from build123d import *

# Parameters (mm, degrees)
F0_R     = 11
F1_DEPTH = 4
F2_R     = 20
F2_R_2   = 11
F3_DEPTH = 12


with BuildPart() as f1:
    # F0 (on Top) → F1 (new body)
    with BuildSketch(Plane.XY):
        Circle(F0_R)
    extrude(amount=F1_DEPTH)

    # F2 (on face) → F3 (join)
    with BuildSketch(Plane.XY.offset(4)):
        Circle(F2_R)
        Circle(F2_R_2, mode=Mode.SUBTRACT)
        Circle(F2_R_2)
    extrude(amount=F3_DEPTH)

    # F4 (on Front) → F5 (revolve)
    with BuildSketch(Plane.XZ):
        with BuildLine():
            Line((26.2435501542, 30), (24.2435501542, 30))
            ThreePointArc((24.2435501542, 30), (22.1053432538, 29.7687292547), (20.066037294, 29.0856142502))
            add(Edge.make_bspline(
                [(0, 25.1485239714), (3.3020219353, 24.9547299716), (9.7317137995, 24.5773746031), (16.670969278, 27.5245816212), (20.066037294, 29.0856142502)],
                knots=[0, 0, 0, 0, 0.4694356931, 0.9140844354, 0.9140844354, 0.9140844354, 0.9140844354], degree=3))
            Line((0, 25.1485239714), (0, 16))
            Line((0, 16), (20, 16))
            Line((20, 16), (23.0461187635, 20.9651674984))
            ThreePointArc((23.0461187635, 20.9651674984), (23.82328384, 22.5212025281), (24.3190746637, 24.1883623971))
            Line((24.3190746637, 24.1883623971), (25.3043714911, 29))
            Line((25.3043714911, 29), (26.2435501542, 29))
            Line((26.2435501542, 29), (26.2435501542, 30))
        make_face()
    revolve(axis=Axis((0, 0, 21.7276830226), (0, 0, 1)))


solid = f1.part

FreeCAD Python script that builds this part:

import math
import FreeCAD as App
import Part
import Sketcher
from FreeCAD import Vector
Q = App.Units.Quantity

doc = App.newDocument("Part")
params = doc.addObject("Spreadsheet::Sheet", "Params")
for row, (alias, value) in enumerate([
    ("sketch1_diameter", "22 mm"),
    ("pad1_length", "4 mm"),
    ("sketch2_diameter", "40 mm"),
    ("pad2_length", "12 mm"),
    ("sketch3_radius", "10 mm"),
    ("sketch3_radius2", "10 mm"),
    ("sketch3_width", "2 mm"),
    ("sketch3_width2", "20 mm"),
    ("sketch3_height", "1 mm"),
    ("revolution_angle", "360 deg"),
], start=1):
    params.set(f"A{row}", alias)
    params.set(f"B{row}", "=" + value)
    params.setAlias(f"B{row}", alias)

body = doc.addObject("PartDesign::Body", "Body")

# Sketch on XY plane
sketch1 = doc.addObject("Sketcher::SketchObject", "Sketch")
body.addObject(sketch1)
sketch1.AttachmentSupport = (doc.XY_Plane, [""])
sketch1.MapMode = "FlatFace"
sketch1.addGeometry(Part.Circle(Vector(0, 0, 0), Vector(0, 0, 1), 11), False)
sketch1.addConstraint(Sketcher.Constraint("Coincident", 0, 3, -1, 1))
sketch1.addConstraint(Sketcher.Constraint("Diameter", 0, Q("22 mm")))
sketch1.setExpression("Constraints[1]", "Params.sketch1_diameter")
pad1 = doc.addObject("PartDesign::Pad", "Pad")
body.addObject(pad1)
pad1.Profile = sketch1
pad1.setExpression("Length", "Params.pad1_length")

# Sketch on XY plane
sketch2 = doc.addObject("Sketcher::SketchObject", "Sketch001")
body.addObject(sketch2)
sketch2.AttachmentSupport = (doc.XY_Plane, [""])
sketch2.MapMode = "FlatFace"
sketch2.AttachmentOffset = App.Placement(Vector(0, 0, 4), App.Rotation())
sketch2.addGeometry(Part.Circle(Vector(0, 0, 0), Vector(0, 0, 1), 20), False)
sketch2.addConstraint(Sketcher.Constraint("Coincident", 0, 3, -1, 1))
sketch2.addConstraint(Sketcher.Constraint("Diameter", 0, Q("40 mm")))
sketch2.setExpression("Constraints[1]", "Params.sketch2_diameter")
pad2 = doc.addObject("PartDesign::Pad", "Pad001")
body.addObject(pad2)
pad2.Profile = sketch2
pad2.setExpression("Length", "Params.pad2_length")

# Sketch on XZ plane
sketch3 = doc.addObject("Sketcher::SketchObject", "Sketch002")
body.addObject(sketch3)
sketch3.AttachmentSupport = (doc.XZ_Plane, [""])
sketch3.MapMode = "FlatFace"
sketch3.addGeometry(Part.LineSegment(Vector(26.24355, 30, 0), Vector(24.24355, 30, 0)), False)
sketch3.addGeometry(Part.ArcOfCircle(Part.Circle(Vector(24.24355, 20, 0), Vector(0, 0, 1), 10), math.radians(90), math.radians(114.692698)), False)
sketch3.addGeometry(Part.BSplineCurve([Vector(0, 25.148524, 0), Vector(3.302022, 24.95473, 0), Vector(9.731714, 24.577375, 0), Vector(16.670969, 27.524582, 0), Vector(20.066037, 29.085614, 0)], [4, 1, 4], [0, 0.469435693, 0.914084435], False, 3, [1, 1, 1, 1, 1], False), False)
sketch3.addGeometry(Part.LineSegment(Vector(0, 25.148524, 0), Vector(0, 16, 0)), False)
sketch3.addGeometry(Part.LineSegment(Vector(0, 16, 0), Vector(20, 16, 0)), False)
sketch3.addGeometry(Part.LineSegment(Vector(20, 16, 0), Vector(23.046119, 20.965167, 0)), False)
sketch3.addGeometry(Part.ArcOfCircle(Part.Circle(Vector(14.522365, 26.194471, 0), Vector(0, 0, 1), 10), math.radians(-31.529019), math.radians(-11.572682)), False)
sketch3.addGeometry(Part.LineSegment(Vector(24.319075, 24.188362, 0), Vector(25.304371, 29, 0)), False)
sketch3.addGeometry(Part.LineSegment(Vector(25.304371, 29, 0), Vector(26.24355, 29, 0)), False)
sketch3.addGeometry(Part.LineSegment(Vector(26.24355, 29, 0), Vector(26.24355, 30, 0)), False)
sketch3.addConstraint(Sketcher.Constraint("Block", 2))
sketch3.addConstraint(Sketcher.Constraint("Coincident", 0, 2, 1, 1))
sketch3.addConstraint(Sketcher.Constraint("Coincident", 1, 2, 2, 2))
sketch3.addConstraint(Sketcher.Constraint("Coincident", 2, 1, 3, 1))
sketch3.addConstraint(Sketcher.Constraint("Coincident", 3, 2, 4, 1))
sketch3.addConstraint(Sketcher.Constraint("Coincident", 4, 2, 5, 1))
sketch3.addConstraint(Sketcher.Constraint("Coincident", 5, 2, 6, 1))
sketch3.addConstraint(Sketcher.Constraint("Coincident", 6, 2, 7, 1))
sketch3.addConstraint(Sketcher.Constraint("Coincident", 7, 2, 8, 1))
sketch3.addConstraint(Sketcher.Constraint("Coincident", 8, 2, 9, 1))
sketch3.addConstraint(Sketcher.Constraint("Coincident", 9, 2, 0, 1))
sketch3.addConstraint(Sketcher.Constraint("Horizontal", 0))
sketch3.addConstraint(Sketcher.Constraint("Vertical", 3))
sketch3.addConstraint(Sketcher.Constraint("Horizontal", 4))
sketch3.addConstraint(Sketcher.Constraint("Horizontal", 8))
sketch3.addConstraint(Sketcher.Constraint("Vertical", 9))
sketch3.addConstraint(Sketcher.Constraint("Radius", 1, Q("10 mm")))
sketch3.addConstraint(Sketcher.Constraint("Radius", 6, Q("10 mm")))
sketch3.addConstraint(Sketcher.Constraint("DistanceX", 0, 2, 0, 1, Q("2 mm")))
sketch3.addConstraint(Sketcher.Constraint("DistanceX", 4, 1, 4, 2, Q("20 mm")))
sketch3.addConstraint(Sketcher.Constraint("DistanceY", 9, 1, 9, 2, Q("1 mm")))
sketch3.addConstraint(Sketcher.Constraint("DistanceY", -1, 1, 1, 3, Q("20 mm")))
sketch3.addConstraint(Sketcher.Constraint("DistanceY", -1, 1, 3, 2, Q("16 mm")))
sketch3.addConstraint(Sketcher.Constraint("DistanceX", 8, 1, 8, 2, Q("0.939179 mm")))
sketch3.addConstraint(Sketcher.Constraint("DistanceY", -1, 1, 6, 3, Q("26.194471 mm")))
sketch3.addConstraint(Sketcher.Constraint("DistanceX", -1, 1, 0, 2, Q("24.24355 mm")))
sketch3.addConstraint(Sketcher.Constraint("DistanceX", -1, 1, 5, 2, Q("23.046119 mm")))
sketch3.addConstraint(Sketcher.Constraint("DistanceY", 6, 2, 1, 2, Q("4.897252 mm")))
sketch3.addConstraint(Sketcher.Constraint("Distance", 5, Q("5.825095 mm")))
sketch3.setExpression("Constraints[16]", "Params.sketch3_radius")
sketch3.setExpression("Constraints[17]", "Params.sketch3_radius2")
sketch3.setExpression("Constraints[18]", "Params.sketch3_width")
sketch3.setExpression("Constraints[19]", "Params.sketch3_width2")
sketch3.setExpression("Constraints[20]", "Params.sketch3_height")
revolution = doc.addObject("PartDesign::Revolution", "Revolution")
body.addObject(revolution)
revolution.Profile = sketch3
revolution.ReferenceAxis = (sketch3, ["V_Axis"])
revolution.setExpression("Angle", "Params.revolution_angle")

doc.recompute()
